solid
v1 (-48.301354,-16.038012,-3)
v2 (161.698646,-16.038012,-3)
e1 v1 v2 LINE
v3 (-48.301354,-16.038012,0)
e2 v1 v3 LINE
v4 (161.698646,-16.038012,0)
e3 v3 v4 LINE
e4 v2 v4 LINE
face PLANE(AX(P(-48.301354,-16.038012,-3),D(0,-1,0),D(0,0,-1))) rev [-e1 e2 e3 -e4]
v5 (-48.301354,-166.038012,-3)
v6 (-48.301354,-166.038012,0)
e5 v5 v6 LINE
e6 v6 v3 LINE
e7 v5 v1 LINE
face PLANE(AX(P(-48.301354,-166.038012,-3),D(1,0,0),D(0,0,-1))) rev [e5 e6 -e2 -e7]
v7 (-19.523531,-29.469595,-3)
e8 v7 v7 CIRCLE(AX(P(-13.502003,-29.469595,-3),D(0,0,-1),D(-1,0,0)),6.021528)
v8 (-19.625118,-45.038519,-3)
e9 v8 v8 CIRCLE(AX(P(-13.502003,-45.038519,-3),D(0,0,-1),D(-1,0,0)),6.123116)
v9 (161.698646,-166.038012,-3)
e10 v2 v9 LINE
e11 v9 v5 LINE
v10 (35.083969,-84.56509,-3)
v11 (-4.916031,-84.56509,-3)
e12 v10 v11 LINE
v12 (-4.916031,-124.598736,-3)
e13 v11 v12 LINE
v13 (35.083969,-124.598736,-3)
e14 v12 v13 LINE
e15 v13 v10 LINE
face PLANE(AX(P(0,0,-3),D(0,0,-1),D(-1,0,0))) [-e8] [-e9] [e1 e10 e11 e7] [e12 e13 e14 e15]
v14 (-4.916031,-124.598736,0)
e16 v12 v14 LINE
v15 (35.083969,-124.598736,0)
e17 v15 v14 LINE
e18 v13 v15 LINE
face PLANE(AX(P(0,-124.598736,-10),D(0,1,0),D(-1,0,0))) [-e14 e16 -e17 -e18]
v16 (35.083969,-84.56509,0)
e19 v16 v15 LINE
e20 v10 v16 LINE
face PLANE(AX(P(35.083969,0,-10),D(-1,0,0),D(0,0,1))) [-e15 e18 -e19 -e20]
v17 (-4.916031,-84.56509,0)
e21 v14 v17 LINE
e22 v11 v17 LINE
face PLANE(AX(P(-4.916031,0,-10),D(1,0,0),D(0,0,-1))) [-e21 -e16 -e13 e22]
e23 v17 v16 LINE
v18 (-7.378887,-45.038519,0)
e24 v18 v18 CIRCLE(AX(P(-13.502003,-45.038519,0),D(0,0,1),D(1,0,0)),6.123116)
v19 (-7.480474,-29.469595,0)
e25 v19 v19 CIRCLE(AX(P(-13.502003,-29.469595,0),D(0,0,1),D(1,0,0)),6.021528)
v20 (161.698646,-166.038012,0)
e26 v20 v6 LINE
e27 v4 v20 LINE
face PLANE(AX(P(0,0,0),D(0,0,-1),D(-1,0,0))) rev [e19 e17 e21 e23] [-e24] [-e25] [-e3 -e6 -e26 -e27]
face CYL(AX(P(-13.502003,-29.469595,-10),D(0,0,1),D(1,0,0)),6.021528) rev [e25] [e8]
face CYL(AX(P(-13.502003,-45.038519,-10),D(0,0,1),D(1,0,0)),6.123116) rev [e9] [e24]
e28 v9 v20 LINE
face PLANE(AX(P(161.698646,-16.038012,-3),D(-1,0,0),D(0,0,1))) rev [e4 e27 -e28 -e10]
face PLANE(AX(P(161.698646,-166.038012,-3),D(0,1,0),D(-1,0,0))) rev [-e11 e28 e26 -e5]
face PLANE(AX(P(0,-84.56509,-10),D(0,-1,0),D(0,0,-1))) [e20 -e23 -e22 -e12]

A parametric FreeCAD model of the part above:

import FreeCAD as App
import Part
import Sketcher
from FreeCAD import Vector

doc = App.newDocument("Part")
params = doc.addObject("Spreadsheet::Sheet", "Params")
for row, (alias, value) in enumerate([
    ("sketch1_width", "210 mm"),
    ("sketch1_height", "150 mm"),
    ("pad1_length", "3 mm"),
    ("sketch2_width", "40 mm"),
    ("pocket1_length", "10 mm"),
    ("pocket2_length", "10 mm"),
], start=1):
    params.set(f"A{row}", alias)
    params.set(f"B{row}", "=" + value)
    params.setAlias(f"B{row}", alias)

body = doc.addObject("PartDesign::Body", "Body")

# Sketch on XY plane
sketch1 = body.newObject("Sketcher::SketchObject", "Sketch")
sketch1.AttachmentSupport = (doc.getObject("XY_Plane"), [""])
sketch1.MapMode = "FlatFace"
sketch1.addGeometry([
    Part.LineSegment(Vector(-48.301354, -16.038012, 0), Vector(-48.301354, -166.038012, 0)),
    Part.LineSegment(Vector(-48.301354, -166.038012, 0), Vector(161.698646, -166.038012, 0)),
    Part.LineSegment(Vector(161.698646, -166.038012, 0), Vector(161.698646, -16.038012, 0)),
    Part.LineSegment(Vector(161.698646, -16.038012, 0), Vector(-48.301354, -16.038012, 0)),
], False)
sketch1.addConstraint([
    Sketcher.Constraint("Coincident", 0, 2, 1, 1),
    Sketcher.Constraint("Coincident", 1, 2, 2, 1),
    Sketcher.Constraint("Coincident", 2, 2, 3, 1),
    Sketcher.Constraint("Coincident", 3, 2, 0, 1),
    Sketcher.Constraint("Vertical", 0),
    Sketcher.Constraint("Horizontal", 1),
    Sketcher.Constraint("Vertical", 2),
    Sketcher.Constraint("Horizontal", 3),
    Sketcher.Constraint("DistanceX", 1, 1, 1, 2, 210.0),
    Sketcher.Constraint("DistanceY", 0, 2, 0, 1, 150.0),
    Sketcher.Constraint("DistanceX", 0, 2, -1, 1, 48.301354),
    Sketcher.Constraint("DistanceY", 0, 2, -1, 1, 166.038012),
])
sketch1.setExpression("Constraints[8]", "Params.sketch1_width")
sketch1.setExpression("Constraints[9]", "Params.sketch1_height")
pad1 = body.newObject("PartDesign::Pad", "Pad")
pad1.Profile = sketch1
pad1.setExpression("Length", "Params.pad1_length")
pad1.Reversed = True

# Sketch on XY plane
sketch2 = body.newObject("Sketcher::SketchObject", "Sketch001")
sketch2.AttachmentSupport = (doc.getObject("XY_Plane"), [""])
sketch2.MapMode = "FlatFace"
sketch2.addGeometry([
    Part.LineSegment(Vector(-4.916031, -124.598736, 0), Vector(35.083969, -124.598736, 0)),
    Part.LineSegment(Vector(35.083969, -124.598736, 0), Vector(35.083969, -84.56509, 0)),
    Part.LineSegment(Vector(35.083969, -84.56509, 0), Vector(-4.916031, -84.56509, 0)),
    Part.LineSegment(Vector(-4.916031, -84.56509, 0), Vector(-4.916031, -124.598736, 0)),
], False)
sketch2.addConstraint([
    Sketcher.Constraint("Coincident", 0, 2, 1, 1),
    Sketcher.Constraint("Coincident", 1, 2, 2, 1),
    Sketcher.Constraint("Coincident", 2, 2, 3, 1),
    Sketcher.Constraint("Coincident", 3, 2, 0, 1),
    Sketcher.Constraint("Horizontal", 0),
    Sketcher.Constraint("Vertical", 1),
    Sketcher.Constraint("Horizontal", 2),
    Sketcher.Constraint("Vertical", 3),
    Sketcher.Constraint("DistanceX", 0, 1, 0, 2, 40.0),
    Sketcher.Constraint("DistanceY", 1, 1, 1, 2, 40.033646),
    Sketcher.Constraint("DistanceX", -1, 1, 0, 2, 35.083969),
    Sketcher.Constraint("DistanceY", 1, 2, -1, 1, 84.56509),
])
sketch2.setExpression("Constraints[8]", "Params.sketch2_width")
pocket1 = body.newObject("PartDesign::Pocket", "Pocket")
pocket1.Profile = sketch2
pocket1.setExpression("Length", "Params.pocket1_length")

# Sketch on XY plane
sketch3 = body.newObject("Sketcher::SketchObject", "Sketch002")
sketch3.AttachmentSupport = (doc.getObject("XY_Plane"), [""])
sketch3.MapMode = "FlatFace"
sketch3.addGeometry([
    Part.Circle(Vector(-13.502003, -45.038519, 0), Vector(0, 0, 1), 6.123116),
    Part.Circle(Vector(-13.502003, -29.469595, 0), Vector(0, 0, 1), 6.021528),
], False)
sketch3.addConstraint([
    Sketcher.Constraint("Vertical", 0, 3, 1, 3),
    Sketcher.Constraint("Diameter", 0, 12.246231),
    Sketcher.Constraint("Diameter", 1, 12.043057),
    Sketcher.Constraint("DistanceY", 0, 3, -1, 1, 45.038519),
    Sketcher.Constraint("DistanceX", 0, 3, -1, 1, 13.502003),
    Sketcher.Constraint("DistanceY", 1, 3, -1, 1, 29.469595),
])
pocket2 = body.newObject("PartDesign::Pocket", "Pocket001")
pocket2.Profile = sketch3
pocket2.setExpression("Length", "Params.pocket2_length")

doc.recompute()
